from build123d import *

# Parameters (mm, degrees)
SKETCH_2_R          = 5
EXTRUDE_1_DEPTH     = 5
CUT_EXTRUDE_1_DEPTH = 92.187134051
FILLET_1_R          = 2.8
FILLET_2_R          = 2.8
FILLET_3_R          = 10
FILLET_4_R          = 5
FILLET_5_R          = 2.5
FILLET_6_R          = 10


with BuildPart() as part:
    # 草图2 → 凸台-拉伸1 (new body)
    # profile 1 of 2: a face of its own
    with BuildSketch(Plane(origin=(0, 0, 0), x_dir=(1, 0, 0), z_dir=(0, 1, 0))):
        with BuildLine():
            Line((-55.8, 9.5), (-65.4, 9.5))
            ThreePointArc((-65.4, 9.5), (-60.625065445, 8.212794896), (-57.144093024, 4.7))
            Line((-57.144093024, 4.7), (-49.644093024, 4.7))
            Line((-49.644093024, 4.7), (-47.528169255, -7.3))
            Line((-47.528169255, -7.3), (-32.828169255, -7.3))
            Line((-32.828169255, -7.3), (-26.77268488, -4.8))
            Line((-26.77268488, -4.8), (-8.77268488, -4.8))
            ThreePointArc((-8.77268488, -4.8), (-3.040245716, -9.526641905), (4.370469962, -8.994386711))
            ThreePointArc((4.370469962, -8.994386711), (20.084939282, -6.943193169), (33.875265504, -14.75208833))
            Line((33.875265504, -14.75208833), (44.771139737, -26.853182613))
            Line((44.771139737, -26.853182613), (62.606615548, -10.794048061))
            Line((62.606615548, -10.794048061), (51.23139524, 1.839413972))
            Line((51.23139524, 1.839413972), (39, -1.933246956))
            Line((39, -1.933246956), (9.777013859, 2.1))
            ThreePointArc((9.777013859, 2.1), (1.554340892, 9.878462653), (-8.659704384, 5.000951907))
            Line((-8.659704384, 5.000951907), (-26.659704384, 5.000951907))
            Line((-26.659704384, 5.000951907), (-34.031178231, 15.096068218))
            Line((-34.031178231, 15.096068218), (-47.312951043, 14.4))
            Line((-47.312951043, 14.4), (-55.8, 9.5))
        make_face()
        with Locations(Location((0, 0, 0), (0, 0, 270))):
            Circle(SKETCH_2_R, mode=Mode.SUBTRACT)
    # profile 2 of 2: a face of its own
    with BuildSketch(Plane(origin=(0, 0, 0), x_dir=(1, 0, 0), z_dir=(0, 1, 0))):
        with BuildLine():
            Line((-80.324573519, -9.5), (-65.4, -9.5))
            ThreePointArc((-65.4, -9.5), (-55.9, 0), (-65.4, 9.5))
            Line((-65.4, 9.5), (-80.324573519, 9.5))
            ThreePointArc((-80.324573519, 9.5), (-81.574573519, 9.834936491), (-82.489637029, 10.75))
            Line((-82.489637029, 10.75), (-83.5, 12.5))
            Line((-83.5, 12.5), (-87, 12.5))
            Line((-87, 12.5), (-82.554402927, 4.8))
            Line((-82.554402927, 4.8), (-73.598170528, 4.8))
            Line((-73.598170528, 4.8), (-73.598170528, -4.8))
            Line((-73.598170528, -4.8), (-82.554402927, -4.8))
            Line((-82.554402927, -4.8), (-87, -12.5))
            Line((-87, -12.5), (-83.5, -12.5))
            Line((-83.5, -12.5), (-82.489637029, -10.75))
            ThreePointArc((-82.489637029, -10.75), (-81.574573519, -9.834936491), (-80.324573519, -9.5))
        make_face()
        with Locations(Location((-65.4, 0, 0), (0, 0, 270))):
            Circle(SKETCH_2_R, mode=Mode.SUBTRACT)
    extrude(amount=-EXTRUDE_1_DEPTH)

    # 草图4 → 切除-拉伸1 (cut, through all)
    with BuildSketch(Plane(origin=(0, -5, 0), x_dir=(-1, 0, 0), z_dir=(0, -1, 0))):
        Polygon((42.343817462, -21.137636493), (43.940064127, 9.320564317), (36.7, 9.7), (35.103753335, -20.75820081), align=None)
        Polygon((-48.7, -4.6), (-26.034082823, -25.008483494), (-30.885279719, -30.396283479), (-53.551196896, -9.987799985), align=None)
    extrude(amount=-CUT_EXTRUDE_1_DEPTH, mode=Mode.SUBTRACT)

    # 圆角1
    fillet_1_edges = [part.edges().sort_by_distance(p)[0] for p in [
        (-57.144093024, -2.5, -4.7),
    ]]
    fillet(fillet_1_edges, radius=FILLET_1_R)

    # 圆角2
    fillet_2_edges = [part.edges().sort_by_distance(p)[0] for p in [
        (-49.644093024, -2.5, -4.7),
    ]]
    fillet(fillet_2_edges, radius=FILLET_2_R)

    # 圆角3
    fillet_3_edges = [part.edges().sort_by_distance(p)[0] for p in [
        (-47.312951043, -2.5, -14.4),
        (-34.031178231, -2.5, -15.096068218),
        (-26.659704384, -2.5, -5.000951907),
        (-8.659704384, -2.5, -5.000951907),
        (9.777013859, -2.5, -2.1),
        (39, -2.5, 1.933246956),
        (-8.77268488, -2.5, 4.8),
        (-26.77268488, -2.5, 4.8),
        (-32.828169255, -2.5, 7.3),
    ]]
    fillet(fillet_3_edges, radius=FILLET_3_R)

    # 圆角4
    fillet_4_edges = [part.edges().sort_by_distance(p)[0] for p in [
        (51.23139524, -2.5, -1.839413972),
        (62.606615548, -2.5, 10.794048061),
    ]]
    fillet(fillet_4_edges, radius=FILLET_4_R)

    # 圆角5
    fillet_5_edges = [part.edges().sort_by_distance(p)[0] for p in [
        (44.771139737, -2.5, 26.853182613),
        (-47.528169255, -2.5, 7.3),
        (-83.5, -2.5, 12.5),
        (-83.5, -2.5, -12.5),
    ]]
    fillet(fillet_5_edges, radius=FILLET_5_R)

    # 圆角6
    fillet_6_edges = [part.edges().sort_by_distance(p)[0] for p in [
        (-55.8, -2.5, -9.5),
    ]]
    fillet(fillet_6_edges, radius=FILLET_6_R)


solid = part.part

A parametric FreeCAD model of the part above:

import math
import FreeCAD as App
import Part
import Sketcher
from FreeCAD import Vector
Q = App.Units.Quantity


def edges_at(feature, points):
    """Names of the edges that pass closest to the given points."""
    edges = feature.Shape.Edges
    near = lambda p: min(range(len(edges)), key=lambda i: edges[i].distToShape(Part.Vertex(*p))[0])
    return sorted({f"Edge{near(p) + 1}" for p in points})


def add_polygon(sketch, points):
    """Adds a closed chain of lines whose ends are joined by coincident constraints."""
    first, n = sketch.GeometryCount, len(points)
    for a, b in zip(points, points[1:] + points[:1]):
        sketch.addGeometry(Part.LineSegment(App.Vector(*a, 0), App.Vector(*b, 0)), False)
    for i in range(n):
        sketch.addConstraint(Sketcher.Constraint("Coincident", first + i, 2, first + (i + 1) % n, 1))

doc = App.newDocument("Part")
params = doc.addObject("Spreadsheet::Sheet", "Params")
for row, (alias, value) in enumerate([
    ("sketch1_diameter", "10 mm"),
    ("sketch1_radius", "10 mm"),
    ("sketch1_radius2", "25 mm"),
    ("sketch1_radius3", "2.5 mm"),
    ("sketch1_radius4", "9.5 mm"),
    ("pad1_length", "5 mm"),
    ("sketch2_length", "30.5 mm"),
    ("sketch2_length2", "7.25 mm"),
    ("fillet_radius", "2.8 mm"),
    ("fillet2_radius", "2.8 mm"),
    ("fillet3_radius", "10 mm"),
    ("fillet4_radius", "5 mm"),
    ("fillet5_radius", "2.5 mm"),
    ("fillet6_radius", "10 mm"),
], start=1):
    params.set(f"A{row}", alias)
    params.set(f"B{row}", "=" + value)
    params.setAlias(f"B{row}", alias)

body = doc.addObject("PartDesign::Body", "Body")

# Sketch on XZ plane
sketch1 = body.newObject("Sketcher::SketchObject", "Sketch")
sketch1.AttachmentSupport = (doc.getObject("XZ_Plane"), [""])
sketch1.MapMode = "FlatFace"
sketch1.addGeometry([
    Part.LineSegment(Vector(-55.8, -9.5, 0), Vector(-80.3, -9.5, 0)),  # 0
    Part.ArcOfCircle(Part.Circle(Vector(-80.3, -12, 0), Vector(0, 0, 1), 2.5), math.radians(90), math.radians(150)),  # 1
    Part.LineSegment(Vector(-82.5, -10.8, 0), Vector(-83.5, -12.5, 0)),  # 2
    Part.LineSegment(Vector(-83.5, -12.5, 0), Vector(-87, -12.5, 0)),  # 3
    Part.LineSegment(Vector(-87, -12.5, 0), Vector(-82.6, -4.8, 0)),  # 4
    Part.LineSegment(Vector(-82.6, -4.8, 0), Vector(-73.6, -4.8, 0)),  # 5
    Part.LineSegment(Vector(-73.6, -4.8, 0), Vector(-73.6, 4.8, 0)),  # 6
    Part.LineSegment(Vector(-73.6, 4.8, 0), Vector(-82.6, 4.8, 0)),  # 7
    Part.LineSegment(Vector(-82.6, 4.8, 0), Vector(-87, 12.5, 0)),  # 8
    Part.LineSegment(Vector(-87, 12.5, 0), Vector(-83.5, 12.5, 0)),  # 9
    Part.LineSegment(Vector(-83.5, 12.5, 0), Vector(-82.5, 10.8, 0)),  # 10
    Part.ArcOfCircle(Part.Circle(Vector(-80.3, 12, 0), Vector(0, 0, 1), 2.5), math.radians(-150), math.radians(-90)),  # 11
    Part.LineSegment(Vector(-80.3, 9.5, 0), Vector(-65.4, 9.5, 0)),  # 12
    Part.ArcOfCircle(Part.Circle(Vector(-65.4, 0, 0), Vector(0, 0, 1), 9.5), math.radians(-30), math.radians(90)),  # 13
    Part.LineSegment(Vector(-57.1, -4.7, 0), Vector(-49.6, -4.7, 0)),  # 14
    Part.LineSegment(Vector(-49.6, -4.7, 0), Vector(-47.5, 7.3, 0)),  # 15
    Part.LineSegment(Vector(-47.5, 7.3, 0), Vector(-32.8, 7.3, 0)),  # 16
    Part.LineSegment(Vector(-32.8, 7.3, 0), Vector(-26.8, 4.8, 0)),  # 17
    Part.LineSegment(Vector(-26.8, 4.8, 0), Vector(-8.8, 4.8, 0)),  # 18
    Part.ArcOfCircle(Part.Circle(Vector(0, 0, 0), Vector(0, 0, 1), 10), math.radians(64), math.radians(151)),  # 19
    Part.ArcOfCircle(Part.Circle(Vector(15.3, 31.5, 0), Vector(0, 0, 1), 25), math.radians(-116), math.radians(-42)),  # 20
    Part.LineSegment(Vector(33.9, 14.8, 0), Vector(44.8, 26.9, 0)),  # 21
    Part.LineSegment(Vector(44.8, 26.9, 0), Vector(62.6, 10.8, 0)),  # 22
    Part.LineSegment(Vector(62.6, 10.8, 0), Vector(51.2, -1.8, 0)),  # 23
    Part.LineSegment(Vector(51.2, -1.8, 0), Vector(39, 1.9, 0)),  # 24
    Part.LineSegment(Vector(39, 1.9, 0), Vector(9.8, -2.1, 0)),  # 25
    Part.ArcOfCircle(Part.Circle(Vector(0, 0, 0), Vector(0, 0, 1), 10), math.radians(-150), math.radians(-12)),  # 26
    Part.LineSegment(Vector(-8.7, -5, 0), Vector(-26.7, -5, 0)),  # 27
    Part.LineSegment(Vector(-26.7, -5, 0), Vector(-34, -15.1, 0)),  # 28
    Part.LineSegment(Vector(-34, -15.1, 0), Vector(-47.3, -14.4, 0)),  # 29
    Part.LineSegment(Vector(-47.3, -14.4, 0), Vector(-55.8, -9.5, 0)),  # 30
    Part.Circle(Vector(0, 0, 0), Vector(0, 0, 1), 5),  # 31
    Part.Circle(Vector(-65.4, 0, 0), Vector(0, 0, 1), 5),  # 32
], False)
sketch1.addConstraint([
    Sketcher.Constraint("Tangent", 0, 2, 1, 1),
    Sketcher.Constraint("Tangent", 1, 2, 2, 1),
    Sketcher.Constraint("Coincident", 2, 2, 3, 1),
    Sketcher.Constraint("Coincident", 3, 2, 4, 1),
    Sketcher.Constraint("Coincident", 4, 2, 5, 1),
    Sketcher.Constraint("Coincident", 5, 2, 6, 1),
    Sketcher.Constraint("Coincident", 6, 2, 7, 1),
    Sketcher.Constraint("Coincident", 7, 2, 8, 1),
    Sketcher.Constraint("Coincident", 8, 2, 9, 1),
    Sketcher.Constraint("Coincident", 9, 2, 10, 1),
    Sketcher.Constraint("Tangent", 10, 2, 11, 1),
    Sketcher.Constraint("Tangent", 11, 2, 12, 1),
    Sketcher.Constraint("Tangent", 12, 2, 13, 2),
    Sketcher.Constraint("Coincident", 13, 1, 14, 1),
    Sketcher.Constraint("Coincident", 14, 2, 15, 1),
    Sketcher.Constraint("Coincident", 15, 2, 16, 1),
    Sketcher.Constraint("Coincident", 16, 2, 17, 1),
    Sketcher.Constraint("Coincident", 17, 2, 18, 1),
    Sketcher.Constraint("Coincident", 18, 2, 19, 2),
    Sketcher.Constraint("Tangent", 19, 1, 20, 1),
    Sketcher.Constraint("Tangent", 20, 2, 21, 1),
    Sketcher.Constraint("Coincident", 21, 2, 22, 1),
    Sketcher.Constraint("Coincident", 22, 2, 23, 1),
    Sketcher.Constraint("Coincident", 23, 2, 24, 1),
    Sketcher.Constraint("Coincident", 24, 2, 25, 1),
    Sketcher.Constraint("Coincident", 25, 2, 26, 2),
    Sketcher.Constraint("Coincident", 26, 1, 27, 1),
    Sketcher.Constraint("Coincident", 27, 2, 28, 1),
    Sketcher.Constraint("Coincident", 28, 2, 29, 1),
    Sketcher.Constraint("Coincident", 29, 2, 30, 1),
    Sketcher.Constraint("Coincident", 30, 2, 0, 1),
    Sketcher.Constraint("Horizontal", 0),
    Sketcher.Constraint("Horizontal", 3),
    Sketcher.Constraint("Horizontal", 5),
    Sketcher.Constraint("Vertical", 6),
    Sketcher.Constraint("Horizontal", 7),
    Sketcher.Constraint("Horizontal", 9),
    Sketcher.Constraint("Horizontal", 12),
    Sketcher.Constraint("Horizontal", 14),
    Sketcher.Constraint("Horizontal", 16),
    Sketcher.Constraint("Horizontal", 18),
    Sketcher.Constraint("Horizontal", 27),
    Sketcher.Constraint("Coincident", 19, 3, -1, 1),
    Sketcher.Constraint("Coincident", 26, 3, -1, 1),
    Sketcher.Constraint("Coincident", 31, 3, -1, 1),
    Sketcher.Constraint("Coincident", 32, 3, 13, 3),
    Sketcher.Constraint("Equal", 1, 11),
    Sketcher.Constraint("Equal", 19, 26),
    Sketcher.Constraint("Equal", 31, 32),
    Sketcher.Constraint("Symmetric", 1, 3, 11, 3, -1),
    Sketcher.Constraint("Symmetric", 4, 2, 7, 2, -1),
    Sketcher.Constraint("Symmetric", 3, 2, 8, 2, -1),
    Sketcher.Constraint("PointOnObject", 13, 3, -1),
    Sketcher.Constraint("Parallel", 2, 4),
    Sketcher.Constraint("Parallel", 8, 10),
    Sketcher.Constraint("Perpendicular", 21, 22),
    Sketcher.Constraint("Perpendicular", 22, 23),
    Sketcher.Constraint("Perpendicular", 4, 30),
    Sketcher.Constraint("Horizontal", 7, 2, 17, 2),
    Sketcher.Constraint("Equal", 18, 27),
    Sketcher.Constraint("Diameter", 31, 10.0),
    Sketcher.Constraint("Radius", 19, 10.0),
    Sketcher.Constraint("Radius", 20, 25.0),
    Sketcher.Constraint("Radius", 1, 2.5),
    Sketcher.Constraint("Radius", 13, 9.5),
    Sketcher.Constraint("DistanceX", 18, 1, 18, 2, 18.0),
    Sketcher.Constraint("Angle", 2, Q("-120 deg")),
    Sketcher.Constraint("Angle", 15, Q("80 deg")),
    Sketcher.Constraint("Angle", 21, Q("48 deg")),
    Sketcher.Constraint("Angle", 29, Q("177 deg")),
    Sketcher.Constraint("Distance", 22, 24.0),
    Sketcher.Constraint("Distance", 23, 17.0),
    Sketcher.Constraint("DistanceX", 3, 2, 3, 1, 3.5),
    Sketcher.Constraint("DistanceX", 14, 1, 14, 2, 7.5),
    Sketcher.Constraint("DistanceX", 16, 1, 16, 2, 14.7),
    Sketcher.Constraint("DistanceY", 6, 1, 6, 2, 9.6),
    Sketcher.Constraint("DistanceX", 3, 2, -1, 1, 87.0),
    Sketcher.Constraint("DistanceX", -1, 1, 24, 2, 39.0),
    Sketcher.Constraint("DistanceY", 2, 2, 0, 2, 3.0),
    Sketcher.Constraint("DistanceY", 14, 2, 15, 2, 12.0),
    Sketcher.Constraint("Distance", 24, 12.8),
    Sketcher.Constraint("Distance", 25, 29.5),
    Sketcher.Constraint("Distance", 28, 12.5),
    Sketcher.Constraint("Distance", 29, 13.3),
    Sketcher.Constraint("Distance", 30, 9.8),
    Sketcher.Constraint("DistanceX", 13, 3, -1, 1, 65.4),
    Sketcher.Constraint("DistanceY", 13, 1, -1, 1, 4.7),
    Sketcher.Constraint("DistanceY", 25, 2, -1, 1, 2.1),
    Sketcher.Constraint("DistanceX", 30, 2, -1, 1, 55.8),
    Sketcher.Constraint("DistanceY", 19, 1, 20, 2, 5.757702),
    Sketcher.Constraint("DistanceX", 5, 1, 5, 2, 8.956232),
])
sketch1.setExpression("Constraints[60]", "Params.sketch1_diameter")
sketch1.setExpression("Constraints[61]", "Params.sketch1_radius")
sketch1.setExpression("Constraints[62]", "Params.sketch1_radius2")
sketch1.setExpression("Constraints[63]", "Params.sketch1_radius3")
sketch1.setExpression("Constraints[64]", "Params.sketch1_radius4")
pad1 = body.newObject("PartDesign::Pad", "Pad")
pad1.Profile = sketch1
pad1.setExpression("Length", "Params.pad1_length")

# Sketch on XZ plane
sketch2 = body.newObject("Sketcher::SketchObject", "Sketch001")
sketch2.AttachmentSupport = (doc.getObject("XZ_Plane"), [""])
sketch2.MapMode = "FlatFace"
sketch2.AttachmentOffset = App.Placement(Vector(0, 0, 5), App.Rotation())
add_polygon(sketch2, [(-42, 21), (-44, -9), (-37, -10), (-35, 21)])  # lines 0-3
add_polygon(sketch2, [(26, 25), (49, 5), (54, 10), (31, 30)])  # lines 4-7
sketch2.addConstraint([
    Sketcher.Constraint("Perpendicular", 0, 1),
    Sketcher.Constraint("Perpendicular", 1, 2),
    Sketcher.Constraint("Perpendicular", 2, 3),
    Sketcher.Constraint("Perpendicular", 4, 5),
    Sketcher.Constraint("Perpendicular", 5, 6),
    Sketcher.Constraint("Perpendicular", 6, 7),
    Sketcher.Constraint("Equal", 2, 4),
    Sketcher.Constraint("Equal", 3, 5),
    Sketcher.Constraint("Angle", 0, Q("-93 deg")),
    Sketcher.Constraint("Angle", 4, Q("-42 deg")),
    Sketcher.Constraint("Distance", 0, 30.5),
    Sketcher.Constraint("DistanceX", 1, 2, -1, 1, 36.7),
    Sketcher.Constraint("DistanceY", 1, 2, -1, 1, 9.7),
    Sketcher.Constraint("DistanceX", -1, 1, 4, 2, 48.7),
    Sketcher.Constraint("DistanceY", -1, 1, 4, 2, 4.6),
    Sketcher.Constraint("Distance", 1, 7.25),
])
sketch2.setExpression("Constraints[18]", "Params.sketch2_length")
sketch2.setExpression("Constraints[23]", "Params.sketch2_length2")
pocket1 = body.newObject("PartDesign::Pocket", "Pocket")
pocket1.Profile = sketch2
pocket1.Type = "ThroughAll"
doc.recompute()

fillet = body.newObject("PartDesign::Fillet", "Fillet")
fillet.Base = (pocket1, edges_at(pocket1, [(-57.144, -2.5, -4.7)]))
fillet.setExpression("Radius", "Params.fillet_radius")
doc.recompute()

fillet2 = body.newObject("PartDesign::Fillet", "Fillet001")
fillet2.Base = (fillet, edges_at(fillet, [(-49.644, -2.5, -4.7)]))
fillet2.setExpression("Radius", "Params.fillet2_radius")
doc.recompute()

fillet3 = body.newObject("PartDesign::Fillet", "Fillet002")
fillet3.Base = (fillet2, edges_at(fillet2, [
    (-47.313, -2.5, -14.4),
    (-34.031, -2.5, -15.096),
    (-26.66, -2.5, -5.001),
    (-8.66, -2.5, -5.001),
    (9.777, -2.5, -2.1),
    (39, -2.5, 1.933),
    (-8.773, -2.5, 4.8),
    (-26.773, -2.5, 4.8),
    (-32.828, -2.5, 7.3),
]))
fillet3.setExpression("Radius", "Params.fillet3_radius")
doc.recompute()

fillet4 = body.newObject("PartDesign::Fillet", "Fillet003")
fillet4.Base = (fillet3, edges_at(fillet3, [(51.231, -2.5, -1.839), (62.607, -2.5, 10.794)]))
fillet4.setExpression("Radius", "Params.fillet4_radius")
doc.recompute()

fillet5 = body.newObject("PartDesign::Fillet", "Fillet004")
fillet5.Base = (fillet4, edges_at(fillet4, [
    (44.771, -2.5, 26.853),
    (-47.528, -2.5, 7.3),
    (-83.5, -2.5, 12.5),
    (-83.5, -2.5, -12.5),
]))
fillet5.setExpression("Radius", "Params.fillet5_radius")
doc.recompute()

fillet6 = body.newObject("PartDesign::Fillet", "Fillet005")
fillet6.Base = (fillet5, edges_at(fillet5, [(-55.8, -2.5, -9.5)]))
fillet6.setExpression("Radius", "Params.fillet6_radius")

doc.recompute()
